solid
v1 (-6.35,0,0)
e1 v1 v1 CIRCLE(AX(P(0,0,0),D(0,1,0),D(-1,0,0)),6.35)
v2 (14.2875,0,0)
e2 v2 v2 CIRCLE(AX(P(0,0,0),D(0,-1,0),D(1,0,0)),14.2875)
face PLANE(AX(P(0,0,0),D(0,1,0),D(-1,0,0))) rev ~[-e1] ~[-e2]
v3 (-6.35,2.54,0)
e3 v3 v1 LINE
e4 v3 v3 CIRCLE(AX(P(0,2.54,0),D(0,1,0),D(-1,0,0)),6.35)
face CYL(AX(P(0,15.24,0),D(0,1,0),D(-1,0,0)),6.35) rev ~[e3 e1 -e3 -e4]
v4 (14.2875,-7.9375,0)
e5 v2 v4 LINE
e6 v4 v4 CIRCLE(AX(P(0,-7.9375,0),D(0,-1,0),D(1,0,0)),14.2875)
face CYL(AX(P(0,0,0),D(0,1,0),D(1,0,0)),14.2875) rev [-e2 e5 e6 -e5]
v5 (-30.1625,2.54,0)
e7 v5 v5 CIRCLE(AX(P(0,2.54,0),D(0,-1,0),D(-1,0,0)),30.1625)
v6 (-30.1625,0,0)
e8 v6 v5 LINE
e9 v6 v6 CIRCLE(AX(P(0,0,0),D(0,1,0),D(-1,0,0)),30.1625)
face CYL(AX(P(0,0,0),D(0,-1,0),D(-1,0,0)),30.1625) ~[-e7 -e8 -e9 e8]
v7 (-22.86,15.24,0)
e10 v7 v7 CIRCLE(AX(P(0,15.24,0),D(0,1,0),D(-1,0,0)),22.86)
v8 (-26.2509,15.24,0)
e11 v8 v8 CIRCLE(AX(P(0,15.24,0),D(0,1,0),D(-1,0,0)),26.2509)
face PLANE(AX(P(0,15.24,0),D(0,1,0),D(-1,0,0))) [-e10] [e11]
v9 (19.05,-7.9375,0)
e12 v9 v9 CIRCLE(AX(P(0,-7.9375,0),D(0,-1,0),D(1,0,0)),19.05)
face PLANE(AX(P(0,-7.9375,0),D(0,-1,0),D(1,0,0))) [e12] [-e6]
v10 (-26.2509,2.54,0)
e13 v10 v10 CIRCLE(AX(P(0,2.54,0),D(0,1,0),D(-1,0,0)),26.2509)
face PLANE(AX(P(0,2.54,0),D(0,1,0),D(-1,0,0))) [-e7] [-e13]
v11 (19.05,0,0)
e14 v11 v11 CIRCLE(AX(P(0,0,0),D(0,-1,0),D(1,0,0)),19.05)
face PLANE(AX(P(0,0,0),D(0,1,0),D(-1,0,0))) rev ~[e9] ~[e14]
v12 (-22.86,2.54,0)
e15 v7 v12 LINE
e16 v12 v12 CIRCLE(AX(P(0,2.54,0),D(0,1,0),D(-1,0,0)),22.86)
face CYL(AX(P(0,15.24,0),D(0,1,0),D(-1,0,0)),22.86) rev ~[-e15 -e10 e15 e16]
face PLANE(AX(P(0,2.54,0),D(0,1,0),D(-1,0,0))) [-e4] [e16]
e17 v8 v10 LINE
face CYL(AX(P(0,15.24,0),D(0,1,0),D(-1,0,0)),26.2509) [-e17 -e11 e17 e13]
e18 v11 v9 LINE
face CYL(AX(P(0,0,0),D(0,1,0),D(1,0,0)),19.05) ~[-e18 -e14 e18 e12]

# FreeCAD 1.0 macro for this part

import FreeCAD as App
import Part
import Sketcher
Q = App.Units.Quantity

doc = App.newDocument("Part")
body = doc.addObject("PartDesign::Body", "Body")

sketch1 = body.newObject("Sketcher::SketchObject", "Sketch")
sketch1.AttachmentSupport = (doc.getObject("XZ_Plane"), [""])
sketch1.MapMode = "FlatFace"
sketch1.addGeometry(Part.Circle(App.Vector(0, 0, 0), App.Vector(0, 0, 1), 19), False)
sketch1.addGeometry(Part.Circle(App.Vector(0, 0, 0), App.Vector(0, 0, 1), 14), False)
sketch1.addConstraint(Sketcher.Constraint("Coincident", 0, 3, -1, 1))
sketch1.addConstraint(Sketcher.Constraint("Coincident", 1, 3, -1, 1))
sketch1.addConstraint(Sketcher.Constraint("Diameter", 0, Q("1.5 in")))
sketch1.addConstraint(Sketcher.Constraint("Diameter", 1, Q("1.125 in")))
pad1 = body.newObject("PartDesign::Pad", "Pad")
pad1.Profile = sketch1
pad1.Length = Q("0.3125 in")

sketch2 = body.newObject("Sketcher::SketchObject", "Sketch001")
sketch2.AttachmentSupport = (doc.getObject("XZ_Plane"), [""])
sketch2.MapMode = "FlatFace"
sketch2.addGeometry(Part.Circle(App.Vector(0, 0, 0), App.Vector(0, 0, 1), 30), False)
sketch2.addConstraint(Sketcher.Constraint("Coincident", 0, 3, -1, 1))
sketch2.addConstraint(Sketcher.Constraint("Diameter", 0, Q("2.375 in")))
pad2 = body.newObject("PartDesign::Pad", "Pad001")
pad2.Profile = sketch2
pad2.Length = Q("0.6 in")
pad2.Reversed = True

sketch3 = body.newObject("Sketcher::SketchObject", "Sketch002")
sketch3.AttachmentSupport = (doc.getObject("XZ_Plane"), [""])
sketch3.MapMode = "FlatFace"
sketch3.AttachmentOffset = App.Placement(App.Vector(0, 0, -0.6 * 25.4), App.Rotation())
sketch3.addGeometry(Part.Circle(App.Vector(0, 0, 0), App.Vector(0, 0, 1), 6), False)
sketch3.addConstraint(Sketcher.Constraint("Coincident", 0, 3, -1, 1))
sketch3.addConstraint(Sketcher.Constraint("Diameter", 0, Q("0.5 in")))
pocket1 = body.newObject("PartDesign::Pocket", "Pocket")
pocket1.Profile = sketch3
pocket1.Type = "ThroughAll"
pocket1.Reversed = True

sketch4 = body.newObject("Sketcher::SketchObject", "Sketch003")
sketch4.AttachmentSupport = (doc.getObject("XZ_Plane"), [""])
sketch4.MapMode = "FlatFace"
sketch4.AttachmentOffset = App.Placement(App.Vector(0, 0, -0.6 * 25.4), App.Rotation())
sketch4.addGeometry(Part.Circle(App.Vector(0, 0, 0), App.Vector(0, 0, 1), 32), False)
sketch4.addGeometry(Part.Circle(App.Vector(0, 0, 0), App.Vector(0, 0, 1), 26), False)
sketch4.addConstraint(Sketcher.Constraint("Coincident", 0, 3, -1, 1))
sketch4.addConstraint(Sketcher.Constraint("Coincident", 1, 3, -1, 1))
sketch4.addConstraint(Sketcher.Constraint("Diameter", 0, Q("2.55 in")))
sketch4.addConstraint(Sketcher.Constraint("Diameter", 1, Q("2.067 in")))
pocket2 = body.newObject("PartDesign::Pocket", "Pocket001")
pocket2.Profile = sketch4
pocket2.Length = Q("0.5 in")
pocket2.Reversed = True

sketch5 = body.newObject("Sketcher::SketchObject", "Sketch004")
sketch5.AttachmentSupport = (doc.getObject("XZ_Plane"), [""])
sketch5.MapMode = "FlatFace"
sketch5.AttachmentOffset = App.Placement(App.Vector(0, 0, -0.6 * 25.4), App.Rotation())
sketch5.addGeometry(Part.Circle(App.Vector(0, 0, 0), App.Vector(0, 0, 1), 23), False)
sketch5.addConstraint(Sketcher.Constraint("Coincident", 0, 3, -1, 1))
sketch5.addConstraint(Sketcher.Constraint("Diameter", 0, Q("1.8 in")))
pocket3 = body.newObject("PartDesign::Pocket", "Pocket002")
pocket3.Profile = sketch5
pocket3.Length = Q("0.5 in")
pocket3.Reversed = True

doc.recompute()
